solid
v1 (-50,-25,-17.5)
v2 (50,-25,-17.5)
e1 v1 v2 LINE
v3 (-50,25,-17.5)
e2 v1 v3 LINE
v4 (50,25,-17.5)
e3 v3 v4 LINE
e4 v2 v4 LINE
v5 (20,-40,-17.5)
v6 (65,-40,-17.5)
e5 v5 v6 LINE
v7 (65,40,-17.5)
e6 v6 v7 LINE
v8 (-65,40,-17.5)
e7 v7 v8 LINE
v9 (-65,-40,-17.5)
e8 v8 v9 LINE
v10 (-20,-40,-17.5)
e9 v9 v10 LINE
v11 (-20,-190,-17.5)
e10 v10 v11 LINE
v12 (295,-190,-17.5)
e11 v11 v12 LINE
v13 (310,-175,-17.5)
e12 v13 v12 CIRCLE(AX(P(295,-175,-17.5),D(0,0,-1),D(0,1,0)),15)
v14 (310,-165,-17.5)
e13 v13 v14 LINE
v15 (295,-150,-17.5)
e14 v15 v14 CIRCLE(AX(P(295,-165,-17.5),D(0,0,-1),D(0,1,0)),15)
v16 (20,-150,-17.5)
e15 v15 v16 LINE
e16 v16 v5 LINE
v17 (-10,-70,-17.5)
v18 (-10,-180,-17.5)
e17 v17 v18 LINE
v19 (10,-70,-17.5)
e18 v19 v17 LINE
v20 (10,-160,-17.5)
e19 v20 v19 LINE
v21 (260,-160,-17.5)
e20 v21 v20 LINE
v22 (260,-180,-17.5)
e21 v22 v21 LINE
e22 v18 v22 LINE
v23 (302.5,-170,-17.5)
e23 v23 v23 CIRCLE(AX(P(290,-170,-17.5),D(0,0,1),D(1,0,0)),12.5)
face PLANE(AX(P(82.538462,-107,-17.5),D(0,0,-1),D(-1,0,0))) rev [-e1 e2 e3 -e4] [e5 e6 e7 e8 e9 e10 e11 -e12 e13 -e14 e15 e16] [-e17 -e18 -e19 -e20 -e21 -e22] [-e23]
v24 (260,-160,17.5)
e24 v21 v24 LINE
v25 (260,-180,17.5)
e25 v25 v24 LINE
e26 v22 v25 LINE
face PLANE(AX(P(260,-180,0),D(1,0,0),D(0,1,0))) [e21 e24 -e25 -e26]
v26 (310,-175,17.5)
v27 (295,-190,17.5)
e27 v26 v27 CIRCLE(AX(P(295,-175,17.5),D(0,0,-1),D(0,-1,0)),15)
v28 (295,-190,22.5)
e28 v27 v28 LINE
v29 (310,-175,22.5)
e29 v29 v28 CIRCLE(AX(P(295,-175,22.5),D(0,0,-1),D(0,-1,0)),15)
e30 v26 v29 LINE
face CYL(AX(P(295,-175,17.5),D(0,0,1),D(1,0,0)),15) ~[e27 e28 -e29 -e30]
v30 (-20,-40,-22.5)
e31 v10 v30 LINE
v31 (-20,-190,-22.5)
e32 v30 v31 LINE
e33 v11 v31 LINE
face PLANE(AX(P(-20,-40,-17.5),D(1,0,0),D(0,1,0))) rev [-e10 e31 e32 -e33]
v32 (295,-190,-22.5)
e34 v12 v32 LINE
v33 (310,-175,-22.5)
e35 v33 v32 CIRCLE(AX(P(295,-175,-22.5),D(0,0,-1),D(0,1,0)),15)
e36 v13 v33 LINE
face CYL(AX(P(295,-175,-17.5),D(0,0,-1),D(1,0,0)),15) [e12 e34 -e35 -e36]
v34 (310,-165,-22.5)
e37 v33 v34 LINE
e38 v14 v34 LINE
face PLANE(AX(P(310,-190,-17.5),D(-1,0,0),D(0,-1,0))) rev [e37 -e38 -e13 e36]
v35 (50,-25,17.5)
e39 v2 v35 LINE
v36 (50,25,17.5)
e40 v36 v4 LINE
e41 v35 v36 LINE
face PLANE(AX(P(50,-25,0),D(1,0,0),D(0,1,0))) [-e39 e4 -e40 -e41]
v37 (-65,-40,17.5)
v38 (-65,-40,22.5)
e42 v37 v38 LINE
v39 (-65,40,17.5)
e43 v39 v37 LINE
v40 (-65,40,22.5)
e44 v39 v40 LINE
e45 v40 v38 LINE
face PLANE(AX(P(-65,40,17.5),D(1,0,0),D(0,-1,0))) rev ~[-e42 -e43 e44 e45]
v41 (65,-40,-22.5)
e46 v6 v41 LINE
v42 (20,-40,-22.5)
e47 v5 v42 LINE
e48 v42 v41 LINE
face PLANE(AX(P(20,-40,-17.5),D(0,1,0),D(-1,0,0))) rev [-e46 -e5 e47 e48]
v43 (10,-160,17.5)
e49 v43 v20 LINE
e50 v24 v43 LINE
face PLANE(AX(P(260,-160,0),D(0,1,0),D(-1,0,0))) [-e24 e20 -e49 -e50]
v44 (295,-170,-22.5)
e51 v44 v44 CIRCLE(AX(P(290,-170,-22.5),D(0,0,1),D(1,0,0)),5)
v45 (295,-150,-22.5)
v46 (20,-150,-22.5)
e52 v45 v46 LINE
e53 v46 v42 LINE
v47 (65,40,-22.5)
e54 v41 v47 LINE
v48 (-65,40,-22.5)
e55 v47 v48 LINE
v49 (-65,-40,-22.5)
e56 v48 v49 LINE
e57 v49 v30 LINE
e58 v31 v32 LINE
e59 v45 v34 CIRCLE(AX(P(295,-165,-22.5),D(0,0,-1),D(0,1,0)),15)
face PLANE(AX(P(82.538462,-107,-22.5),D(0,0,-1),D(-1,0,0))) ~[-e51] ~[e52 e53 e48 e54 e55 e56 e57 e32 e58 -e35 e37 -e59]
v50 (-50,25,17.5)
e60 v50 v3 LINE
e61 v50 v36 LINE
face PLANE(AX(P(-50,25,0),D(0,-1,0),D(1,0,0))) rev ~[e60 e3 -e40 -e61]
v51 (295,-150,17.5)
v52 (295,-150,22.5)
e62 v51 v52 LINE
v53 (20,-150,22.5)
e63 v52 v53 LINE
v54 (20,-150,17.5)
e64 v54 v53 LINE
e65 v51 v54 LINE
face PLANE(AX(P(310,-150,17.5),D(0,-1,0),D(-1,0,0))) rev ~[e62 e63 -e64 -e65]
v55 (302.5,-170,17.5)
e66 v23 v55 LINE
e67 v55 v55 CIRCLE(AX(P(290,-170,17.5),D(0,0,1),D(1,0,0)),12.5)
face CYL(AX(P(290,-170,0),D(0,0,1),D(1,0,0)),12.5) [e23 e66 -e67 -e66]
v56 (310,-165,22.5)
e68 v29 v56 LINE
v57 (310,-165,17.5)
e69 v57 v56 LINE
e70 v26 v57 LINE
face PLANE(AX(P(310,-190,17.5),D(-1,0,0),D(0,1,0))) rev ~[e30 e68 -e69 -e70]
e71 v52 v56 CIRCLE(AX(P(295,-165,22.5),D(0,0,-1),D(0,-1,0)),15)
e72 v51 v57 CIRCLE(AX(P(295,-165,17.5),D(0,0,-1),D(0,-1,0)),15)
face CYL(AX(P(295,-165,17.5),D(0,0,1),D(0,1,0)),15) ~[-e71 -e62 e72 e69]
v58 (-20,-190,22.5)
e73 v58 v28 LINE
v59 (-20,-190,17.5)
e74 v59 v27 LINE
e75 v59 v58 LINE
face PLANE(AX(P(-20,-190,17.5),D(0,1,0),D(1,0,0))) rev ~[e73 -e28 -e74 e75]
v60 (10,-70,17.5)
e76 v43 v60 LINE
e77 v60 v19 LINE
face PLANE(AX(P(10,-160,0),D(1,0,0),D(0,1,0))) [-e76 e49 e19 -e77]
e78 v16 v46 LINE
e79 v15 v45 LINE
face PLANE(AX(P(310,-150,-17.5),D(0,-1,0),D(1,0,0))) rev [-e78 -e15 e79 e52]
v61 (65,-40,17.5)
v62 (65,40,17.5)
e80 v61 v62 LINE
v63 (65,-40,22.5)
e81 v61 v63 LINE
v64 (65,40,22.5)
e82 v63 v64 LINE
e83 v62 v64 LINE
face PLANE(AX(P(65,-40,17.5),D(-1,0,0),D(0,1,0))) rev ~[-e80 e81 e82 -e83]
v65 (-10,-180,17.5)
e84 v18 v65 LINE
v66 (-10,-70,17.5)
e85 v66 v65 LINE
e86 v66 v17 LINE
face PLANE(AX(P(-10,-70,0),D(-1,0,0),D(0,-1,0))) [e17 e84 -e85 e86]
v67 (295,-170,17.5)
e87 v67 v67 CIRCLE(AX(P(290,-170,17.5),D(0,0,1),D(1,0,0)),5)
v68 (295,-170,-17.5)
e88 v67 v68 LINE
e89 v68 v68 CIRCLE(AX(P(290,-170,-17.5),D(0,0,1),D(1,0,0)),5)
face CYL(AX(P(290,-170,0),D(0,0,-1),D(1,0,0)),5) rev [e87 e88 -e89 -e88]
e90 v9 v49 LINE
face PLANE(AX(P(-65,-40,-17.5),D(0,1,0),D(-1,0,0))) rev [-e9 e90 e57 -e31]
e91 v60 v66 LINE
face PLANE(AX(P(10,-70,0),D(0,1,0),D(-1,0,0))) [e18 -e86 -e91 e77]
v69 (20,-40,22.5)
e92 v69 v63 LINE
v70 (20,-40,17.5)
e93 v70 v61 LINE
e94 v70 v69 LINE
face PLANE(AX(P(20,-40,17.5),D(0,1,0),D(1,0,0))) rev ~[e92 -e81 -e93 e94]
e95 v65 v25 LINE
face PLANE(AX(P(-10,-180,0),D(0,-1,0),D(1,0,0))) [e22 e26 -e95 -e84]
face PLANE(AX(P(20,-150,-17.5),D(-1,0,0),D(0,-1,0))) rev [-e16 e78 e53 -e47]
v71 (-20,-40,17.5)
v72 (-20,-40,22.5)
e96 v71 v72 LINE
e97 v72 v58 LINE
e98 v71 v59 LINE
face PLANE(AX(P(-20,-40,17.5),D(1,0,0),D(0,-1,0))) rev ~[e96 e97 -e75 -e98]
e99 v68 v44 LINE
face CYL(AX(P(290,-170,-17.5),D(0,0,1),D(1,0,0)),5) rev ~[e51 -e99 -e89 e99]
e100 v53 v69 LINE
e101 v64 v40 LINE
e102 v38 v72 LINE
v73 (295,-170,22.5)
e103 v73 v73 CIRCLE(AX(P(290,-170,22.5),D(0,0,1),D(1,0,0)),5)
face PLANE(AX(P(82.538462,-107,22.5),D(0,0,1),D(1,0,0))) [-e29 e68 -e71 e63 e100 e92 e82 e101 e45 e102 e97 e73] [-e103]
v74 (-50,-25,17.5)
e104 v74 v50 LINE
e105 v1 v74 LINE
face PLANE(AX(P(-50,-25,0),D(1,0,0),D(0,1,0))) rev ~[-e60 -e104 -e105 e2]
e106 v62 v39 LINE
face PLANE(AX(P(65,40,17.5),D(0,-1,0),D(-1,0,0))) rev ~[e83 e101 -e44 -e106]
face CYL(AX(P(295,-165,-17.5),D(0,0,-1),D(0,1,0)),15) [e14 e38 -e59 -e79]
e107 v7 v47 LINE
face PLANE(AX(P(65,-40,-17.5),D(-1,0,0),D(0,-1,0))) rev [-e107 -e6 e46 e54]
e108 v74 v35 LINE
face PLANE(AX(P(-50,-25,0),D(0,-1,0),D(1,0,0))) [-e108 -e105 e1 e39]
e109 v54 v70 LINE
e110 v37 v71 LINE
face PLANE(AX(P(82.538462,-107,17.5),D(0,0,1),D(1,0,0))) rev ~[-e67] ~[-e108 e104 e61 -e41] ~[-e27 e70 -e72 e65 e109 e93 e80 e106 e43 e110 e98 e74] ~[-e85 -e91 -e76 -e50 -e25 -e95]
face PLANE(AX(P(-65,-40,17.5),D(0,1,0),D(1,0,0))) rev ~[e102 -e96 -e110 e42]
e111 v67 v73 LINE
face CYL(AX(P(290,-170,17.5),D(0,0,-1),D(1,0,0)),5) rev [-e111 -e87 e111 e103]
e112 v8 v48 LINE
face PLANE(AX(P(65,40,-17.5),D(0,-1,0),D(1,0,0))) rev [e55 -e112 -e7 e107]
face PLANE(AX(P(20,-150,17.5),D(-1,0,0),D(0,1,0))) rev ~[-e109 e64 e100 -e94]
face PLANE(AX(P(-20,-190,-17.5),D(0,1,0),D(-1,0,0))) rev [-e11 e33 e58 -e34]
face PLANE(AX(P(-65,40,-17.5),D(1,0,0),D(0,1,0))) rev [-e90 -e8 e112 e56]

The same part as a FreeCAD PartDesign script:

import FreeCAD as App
import Part
import Sketcher
Q = App.Units.Quantity


def edges_at(feature, points):
    """Names of the edges that pass closest to the given points."""
    edges = feature.Shape.Edges
    near = lambda p: min(range(len(edges)), key=lambda i: edges[i].distToShape(Part.Vertex(*p))[0])
    return sorted({f"Edge{near(p) + 1}" for p in points})


def add_polygon(sketch, points):
    """Adds a closed chain of lines whose ends are joined by coincident constraints."""
    first, n = sketch.GeometryCount, len(points)
    for a, b in zip(points, points[1:] + points[:1]):
        sketch.addGeometry(Part.LineSegment(App.Vector(*a, 0), App.Vector(*b, 0)), False)
    for i in range(n):
        sketch.addConstraint(Sketcher.Constraint("Coincident", first + i, 2, first + (i + 1) % n, 1))

doc = App.newDocument("Part")
body = doc.addObject("PartDesign::Body", "Body")

# Sketch on XY plane
sketch1 = body.newObject("Sketcher::SketchObject", "Sketch")
sketch1.AttachmentSupport = (doc.getObject("XY_Plane"), [""])
sketch1.MapMode = "FlatFace"
add_polygon(sketch1, [(-50, 25), (-50, -25), (50, -25), (50, 25)])  # lines 0-3
sketch1.addConstraint([
    Sketcher.Constraint("Vertical", 0),
    Sketcher.Constraint("Horizontal", 1),
    Sketcher.Constraint("Vertical", 2),
    Sketcher.Constraint("Horizontal", 3),
    Sketcher.Constraint("Symmetric", 0, 2, 2, 2, -1, 1),
    Sketcher.Constraint("DistanceX", 1, 1, 1, 2, Q("100 mm")),
    Sketcher.Constraint("DistanceY", 0, 2, 0, 1, Q("50 mm")),
])
pad1 = body.newObject("PartDesign::Pad", "Pad")
pad1.Profile = sketch1
pad1.Length = 35
pad1.Midplane = True

# Sketch on XY plane
sketch2 = body.newObject("Sketcher::SketchObject", "Sketch001")
sketch2.AttachmentSupport = (doc.getObject("XY_Plane"), [""])
sketch2.MapMode = "FlatFace"
sketch2.AttachmentOffset = App.Placement(App.Vector(0, 0, 17.5), App.Rotation())
add_polygon(sketch2, [(20, -40), (65, -40), (65, 40), (-65, 40), (-65, -40), (-20, -40), (-20, -190), (310, -190), (310, -150), (20, -150)])  # lines 0-9
sketch2.addGeometry(Part.Circle(App.Vector(290, -170, 0), App.Vector(0, 0, 1), 5), False)  # 10
sketch2.addConstraint([
    Sketcher.Constraint("Horizontal", 0),
    Sketcher.Constraint("Vertical", 1),
    Sketcher.Constraint("Horizontal", 2),
    Sketcher.Constraint("Vertical", 3),
    Sketcher.Constraint("Horizontal", 4),
    Sketcher.Constraint("Vertical", 5),
    Sketcher.Constraint("Horizontal", 6),
    Sketcher.Constraint("Vertical", 7),
    Sketcher.Constraint("Horizontal", 8),
    Sketcher.Constraint("Vertical", 9),
    Sketcher.Constraint("Symmetric", 0, 2, 2, 2, -1, 1),
    Sketcher.Constraint("Symmetric", 4, 2, 9, 2, -2),
    Sketcher.Constraint("Diameter", 10, Q("10 mm")),
    Sketcher.Constraint("DistanceX", 0, 1, 0, 2, Q("45 mm")),
    Sketcher.Constraint("DistanceX", 2, 2, 2, 1, Q("130 mm")),
    Sketcher.Constraint("DistanceX", 6, 1, 6, 2, Q("330 mm")),
    Sketcher.Constraint("DistanceY", 1, 1, 1, 2, Q("80 mm")),
    Sketcher.Constraint("DistanceY", 5, 2, 5, 1, Q("150 mm")),
    Sketcher.Constraint("DistanceY", 7, 1, 7, 2, Q("40 mm")),
    Sketcher.Constraint("DistanceX", -1, 1, 10, 3, Q("290 mm")),
    Sketcher.Constraint("DistanceY", 10, 3, -1, 1, Q("170 mm")),
])
pad2 = body.newObject("PartDesign::Pad", "Pad001")
pad2.Profile = sketch2
pad2.Length = 5
doc.recompute()

mirrored = body.newObject("PartDesign::Mirrored", "Mirrored")
mirrored.Originals = [pad2]
mirrored.MirrorPlane = (doc.getObject("XY_Plane"), [""])
body.Tip = mirrored

# Sketch on XY plane
sketch3 = body.newObject("Sketcher::SketchObject", "Sketch002")
sketch3.AttachmentSupport = (doc.getObject("XY_Plane"), [""])
sketch3.MapMode = "FlatFace"
add_polygon(sketch3, [(-10, -70), (-10, -180), (260, -180), (260, -160), (10, -160), (10, -70)])  # lines 0-5
sketch3.addConstraint([
    Sketcher.Constraint("Vertical", 0),
    Sketcher.Constraint("Horizontal", 1),
    Sketcher.Constraint("Vertical", 2),
    Sketcher.Constraint("Horizontal", 3),
    Sketcher.Constraint("Vertical", 4),
    Sketcher.Constraint("Horizontal", 5),
    Sketcher.Constraint("Equal", 5, 2),
    Sketcher.Constraint("DistanceX", 1, 1, 1, 2, Q("270 mm")),
    Sketcher.Constraint("DistanceX", 3, 2, 3, 1, Q("250 mm")),
    Sketcher.Constraint("DistanceY", 0, 2, 0, 1, Q("110 mm")),
    Sketcher.Constraint("DistanceX", 0, 2, -1, 1, Q("10 mm")),
    Sketcher.Constraint("DistanceY", 0, 2, -1, 1, Q("180 mm")),
])
pad3 = body.newObject("PartDesign::Pad", "Pad002")
pad3.Profile = sketch3
pad3.Length = 35
pad3.Midplane = True
doc.recompute()

fillet = body.newObject("PartDesign::Fillet", "Fillet")
fillet.Base = (pad3, edges_at(pad3, [
    (310, -190, 20),
    (310, -150, 20),
    (310, -150, -20),
    (310, -190, -20),
]))
fillet.Radius = 15

# Sketch on XY plane
sketch4 = body.newObject("Sketcher::SketchObject", "Sketch003")
sketch4.AttachmentSupport = (doc.getObject("XY_Plane"), [""])
sketch4.MapMode = "FlatFace"
sketch4.addGeometry([
    Part.Circle(App.Vector(290, -170, 0), App.Vector(0, 0, 1), 12),
    Part.Circle(App.Vector(290, -170, 0), App.Vector(0, 0, 1), 5),
], False)
sketch4.addConstraint([
    Sketcher.Constraint("Coincident", 1, 3, 0, 3),
    Sketcher.Constraint("Diameter", 0, Q("25 mm")),
    Sketcher.Constraint("Diameter", 1, Q("10 mm")),
    Sketcher.Constraint("DistanceX", -1, 1, 0, 3, Q("290 mm")),
    Sketcher.Constraint("DistanceY", 0, 3, -1, 1, Q("170 mm")),
])
pad4 = body.newObject("PartDesign::Pad", "Pad003")
pad4.Profile = sketch4
pad4.Length = 35
pad4.Midplane = True

doc.recompute()
